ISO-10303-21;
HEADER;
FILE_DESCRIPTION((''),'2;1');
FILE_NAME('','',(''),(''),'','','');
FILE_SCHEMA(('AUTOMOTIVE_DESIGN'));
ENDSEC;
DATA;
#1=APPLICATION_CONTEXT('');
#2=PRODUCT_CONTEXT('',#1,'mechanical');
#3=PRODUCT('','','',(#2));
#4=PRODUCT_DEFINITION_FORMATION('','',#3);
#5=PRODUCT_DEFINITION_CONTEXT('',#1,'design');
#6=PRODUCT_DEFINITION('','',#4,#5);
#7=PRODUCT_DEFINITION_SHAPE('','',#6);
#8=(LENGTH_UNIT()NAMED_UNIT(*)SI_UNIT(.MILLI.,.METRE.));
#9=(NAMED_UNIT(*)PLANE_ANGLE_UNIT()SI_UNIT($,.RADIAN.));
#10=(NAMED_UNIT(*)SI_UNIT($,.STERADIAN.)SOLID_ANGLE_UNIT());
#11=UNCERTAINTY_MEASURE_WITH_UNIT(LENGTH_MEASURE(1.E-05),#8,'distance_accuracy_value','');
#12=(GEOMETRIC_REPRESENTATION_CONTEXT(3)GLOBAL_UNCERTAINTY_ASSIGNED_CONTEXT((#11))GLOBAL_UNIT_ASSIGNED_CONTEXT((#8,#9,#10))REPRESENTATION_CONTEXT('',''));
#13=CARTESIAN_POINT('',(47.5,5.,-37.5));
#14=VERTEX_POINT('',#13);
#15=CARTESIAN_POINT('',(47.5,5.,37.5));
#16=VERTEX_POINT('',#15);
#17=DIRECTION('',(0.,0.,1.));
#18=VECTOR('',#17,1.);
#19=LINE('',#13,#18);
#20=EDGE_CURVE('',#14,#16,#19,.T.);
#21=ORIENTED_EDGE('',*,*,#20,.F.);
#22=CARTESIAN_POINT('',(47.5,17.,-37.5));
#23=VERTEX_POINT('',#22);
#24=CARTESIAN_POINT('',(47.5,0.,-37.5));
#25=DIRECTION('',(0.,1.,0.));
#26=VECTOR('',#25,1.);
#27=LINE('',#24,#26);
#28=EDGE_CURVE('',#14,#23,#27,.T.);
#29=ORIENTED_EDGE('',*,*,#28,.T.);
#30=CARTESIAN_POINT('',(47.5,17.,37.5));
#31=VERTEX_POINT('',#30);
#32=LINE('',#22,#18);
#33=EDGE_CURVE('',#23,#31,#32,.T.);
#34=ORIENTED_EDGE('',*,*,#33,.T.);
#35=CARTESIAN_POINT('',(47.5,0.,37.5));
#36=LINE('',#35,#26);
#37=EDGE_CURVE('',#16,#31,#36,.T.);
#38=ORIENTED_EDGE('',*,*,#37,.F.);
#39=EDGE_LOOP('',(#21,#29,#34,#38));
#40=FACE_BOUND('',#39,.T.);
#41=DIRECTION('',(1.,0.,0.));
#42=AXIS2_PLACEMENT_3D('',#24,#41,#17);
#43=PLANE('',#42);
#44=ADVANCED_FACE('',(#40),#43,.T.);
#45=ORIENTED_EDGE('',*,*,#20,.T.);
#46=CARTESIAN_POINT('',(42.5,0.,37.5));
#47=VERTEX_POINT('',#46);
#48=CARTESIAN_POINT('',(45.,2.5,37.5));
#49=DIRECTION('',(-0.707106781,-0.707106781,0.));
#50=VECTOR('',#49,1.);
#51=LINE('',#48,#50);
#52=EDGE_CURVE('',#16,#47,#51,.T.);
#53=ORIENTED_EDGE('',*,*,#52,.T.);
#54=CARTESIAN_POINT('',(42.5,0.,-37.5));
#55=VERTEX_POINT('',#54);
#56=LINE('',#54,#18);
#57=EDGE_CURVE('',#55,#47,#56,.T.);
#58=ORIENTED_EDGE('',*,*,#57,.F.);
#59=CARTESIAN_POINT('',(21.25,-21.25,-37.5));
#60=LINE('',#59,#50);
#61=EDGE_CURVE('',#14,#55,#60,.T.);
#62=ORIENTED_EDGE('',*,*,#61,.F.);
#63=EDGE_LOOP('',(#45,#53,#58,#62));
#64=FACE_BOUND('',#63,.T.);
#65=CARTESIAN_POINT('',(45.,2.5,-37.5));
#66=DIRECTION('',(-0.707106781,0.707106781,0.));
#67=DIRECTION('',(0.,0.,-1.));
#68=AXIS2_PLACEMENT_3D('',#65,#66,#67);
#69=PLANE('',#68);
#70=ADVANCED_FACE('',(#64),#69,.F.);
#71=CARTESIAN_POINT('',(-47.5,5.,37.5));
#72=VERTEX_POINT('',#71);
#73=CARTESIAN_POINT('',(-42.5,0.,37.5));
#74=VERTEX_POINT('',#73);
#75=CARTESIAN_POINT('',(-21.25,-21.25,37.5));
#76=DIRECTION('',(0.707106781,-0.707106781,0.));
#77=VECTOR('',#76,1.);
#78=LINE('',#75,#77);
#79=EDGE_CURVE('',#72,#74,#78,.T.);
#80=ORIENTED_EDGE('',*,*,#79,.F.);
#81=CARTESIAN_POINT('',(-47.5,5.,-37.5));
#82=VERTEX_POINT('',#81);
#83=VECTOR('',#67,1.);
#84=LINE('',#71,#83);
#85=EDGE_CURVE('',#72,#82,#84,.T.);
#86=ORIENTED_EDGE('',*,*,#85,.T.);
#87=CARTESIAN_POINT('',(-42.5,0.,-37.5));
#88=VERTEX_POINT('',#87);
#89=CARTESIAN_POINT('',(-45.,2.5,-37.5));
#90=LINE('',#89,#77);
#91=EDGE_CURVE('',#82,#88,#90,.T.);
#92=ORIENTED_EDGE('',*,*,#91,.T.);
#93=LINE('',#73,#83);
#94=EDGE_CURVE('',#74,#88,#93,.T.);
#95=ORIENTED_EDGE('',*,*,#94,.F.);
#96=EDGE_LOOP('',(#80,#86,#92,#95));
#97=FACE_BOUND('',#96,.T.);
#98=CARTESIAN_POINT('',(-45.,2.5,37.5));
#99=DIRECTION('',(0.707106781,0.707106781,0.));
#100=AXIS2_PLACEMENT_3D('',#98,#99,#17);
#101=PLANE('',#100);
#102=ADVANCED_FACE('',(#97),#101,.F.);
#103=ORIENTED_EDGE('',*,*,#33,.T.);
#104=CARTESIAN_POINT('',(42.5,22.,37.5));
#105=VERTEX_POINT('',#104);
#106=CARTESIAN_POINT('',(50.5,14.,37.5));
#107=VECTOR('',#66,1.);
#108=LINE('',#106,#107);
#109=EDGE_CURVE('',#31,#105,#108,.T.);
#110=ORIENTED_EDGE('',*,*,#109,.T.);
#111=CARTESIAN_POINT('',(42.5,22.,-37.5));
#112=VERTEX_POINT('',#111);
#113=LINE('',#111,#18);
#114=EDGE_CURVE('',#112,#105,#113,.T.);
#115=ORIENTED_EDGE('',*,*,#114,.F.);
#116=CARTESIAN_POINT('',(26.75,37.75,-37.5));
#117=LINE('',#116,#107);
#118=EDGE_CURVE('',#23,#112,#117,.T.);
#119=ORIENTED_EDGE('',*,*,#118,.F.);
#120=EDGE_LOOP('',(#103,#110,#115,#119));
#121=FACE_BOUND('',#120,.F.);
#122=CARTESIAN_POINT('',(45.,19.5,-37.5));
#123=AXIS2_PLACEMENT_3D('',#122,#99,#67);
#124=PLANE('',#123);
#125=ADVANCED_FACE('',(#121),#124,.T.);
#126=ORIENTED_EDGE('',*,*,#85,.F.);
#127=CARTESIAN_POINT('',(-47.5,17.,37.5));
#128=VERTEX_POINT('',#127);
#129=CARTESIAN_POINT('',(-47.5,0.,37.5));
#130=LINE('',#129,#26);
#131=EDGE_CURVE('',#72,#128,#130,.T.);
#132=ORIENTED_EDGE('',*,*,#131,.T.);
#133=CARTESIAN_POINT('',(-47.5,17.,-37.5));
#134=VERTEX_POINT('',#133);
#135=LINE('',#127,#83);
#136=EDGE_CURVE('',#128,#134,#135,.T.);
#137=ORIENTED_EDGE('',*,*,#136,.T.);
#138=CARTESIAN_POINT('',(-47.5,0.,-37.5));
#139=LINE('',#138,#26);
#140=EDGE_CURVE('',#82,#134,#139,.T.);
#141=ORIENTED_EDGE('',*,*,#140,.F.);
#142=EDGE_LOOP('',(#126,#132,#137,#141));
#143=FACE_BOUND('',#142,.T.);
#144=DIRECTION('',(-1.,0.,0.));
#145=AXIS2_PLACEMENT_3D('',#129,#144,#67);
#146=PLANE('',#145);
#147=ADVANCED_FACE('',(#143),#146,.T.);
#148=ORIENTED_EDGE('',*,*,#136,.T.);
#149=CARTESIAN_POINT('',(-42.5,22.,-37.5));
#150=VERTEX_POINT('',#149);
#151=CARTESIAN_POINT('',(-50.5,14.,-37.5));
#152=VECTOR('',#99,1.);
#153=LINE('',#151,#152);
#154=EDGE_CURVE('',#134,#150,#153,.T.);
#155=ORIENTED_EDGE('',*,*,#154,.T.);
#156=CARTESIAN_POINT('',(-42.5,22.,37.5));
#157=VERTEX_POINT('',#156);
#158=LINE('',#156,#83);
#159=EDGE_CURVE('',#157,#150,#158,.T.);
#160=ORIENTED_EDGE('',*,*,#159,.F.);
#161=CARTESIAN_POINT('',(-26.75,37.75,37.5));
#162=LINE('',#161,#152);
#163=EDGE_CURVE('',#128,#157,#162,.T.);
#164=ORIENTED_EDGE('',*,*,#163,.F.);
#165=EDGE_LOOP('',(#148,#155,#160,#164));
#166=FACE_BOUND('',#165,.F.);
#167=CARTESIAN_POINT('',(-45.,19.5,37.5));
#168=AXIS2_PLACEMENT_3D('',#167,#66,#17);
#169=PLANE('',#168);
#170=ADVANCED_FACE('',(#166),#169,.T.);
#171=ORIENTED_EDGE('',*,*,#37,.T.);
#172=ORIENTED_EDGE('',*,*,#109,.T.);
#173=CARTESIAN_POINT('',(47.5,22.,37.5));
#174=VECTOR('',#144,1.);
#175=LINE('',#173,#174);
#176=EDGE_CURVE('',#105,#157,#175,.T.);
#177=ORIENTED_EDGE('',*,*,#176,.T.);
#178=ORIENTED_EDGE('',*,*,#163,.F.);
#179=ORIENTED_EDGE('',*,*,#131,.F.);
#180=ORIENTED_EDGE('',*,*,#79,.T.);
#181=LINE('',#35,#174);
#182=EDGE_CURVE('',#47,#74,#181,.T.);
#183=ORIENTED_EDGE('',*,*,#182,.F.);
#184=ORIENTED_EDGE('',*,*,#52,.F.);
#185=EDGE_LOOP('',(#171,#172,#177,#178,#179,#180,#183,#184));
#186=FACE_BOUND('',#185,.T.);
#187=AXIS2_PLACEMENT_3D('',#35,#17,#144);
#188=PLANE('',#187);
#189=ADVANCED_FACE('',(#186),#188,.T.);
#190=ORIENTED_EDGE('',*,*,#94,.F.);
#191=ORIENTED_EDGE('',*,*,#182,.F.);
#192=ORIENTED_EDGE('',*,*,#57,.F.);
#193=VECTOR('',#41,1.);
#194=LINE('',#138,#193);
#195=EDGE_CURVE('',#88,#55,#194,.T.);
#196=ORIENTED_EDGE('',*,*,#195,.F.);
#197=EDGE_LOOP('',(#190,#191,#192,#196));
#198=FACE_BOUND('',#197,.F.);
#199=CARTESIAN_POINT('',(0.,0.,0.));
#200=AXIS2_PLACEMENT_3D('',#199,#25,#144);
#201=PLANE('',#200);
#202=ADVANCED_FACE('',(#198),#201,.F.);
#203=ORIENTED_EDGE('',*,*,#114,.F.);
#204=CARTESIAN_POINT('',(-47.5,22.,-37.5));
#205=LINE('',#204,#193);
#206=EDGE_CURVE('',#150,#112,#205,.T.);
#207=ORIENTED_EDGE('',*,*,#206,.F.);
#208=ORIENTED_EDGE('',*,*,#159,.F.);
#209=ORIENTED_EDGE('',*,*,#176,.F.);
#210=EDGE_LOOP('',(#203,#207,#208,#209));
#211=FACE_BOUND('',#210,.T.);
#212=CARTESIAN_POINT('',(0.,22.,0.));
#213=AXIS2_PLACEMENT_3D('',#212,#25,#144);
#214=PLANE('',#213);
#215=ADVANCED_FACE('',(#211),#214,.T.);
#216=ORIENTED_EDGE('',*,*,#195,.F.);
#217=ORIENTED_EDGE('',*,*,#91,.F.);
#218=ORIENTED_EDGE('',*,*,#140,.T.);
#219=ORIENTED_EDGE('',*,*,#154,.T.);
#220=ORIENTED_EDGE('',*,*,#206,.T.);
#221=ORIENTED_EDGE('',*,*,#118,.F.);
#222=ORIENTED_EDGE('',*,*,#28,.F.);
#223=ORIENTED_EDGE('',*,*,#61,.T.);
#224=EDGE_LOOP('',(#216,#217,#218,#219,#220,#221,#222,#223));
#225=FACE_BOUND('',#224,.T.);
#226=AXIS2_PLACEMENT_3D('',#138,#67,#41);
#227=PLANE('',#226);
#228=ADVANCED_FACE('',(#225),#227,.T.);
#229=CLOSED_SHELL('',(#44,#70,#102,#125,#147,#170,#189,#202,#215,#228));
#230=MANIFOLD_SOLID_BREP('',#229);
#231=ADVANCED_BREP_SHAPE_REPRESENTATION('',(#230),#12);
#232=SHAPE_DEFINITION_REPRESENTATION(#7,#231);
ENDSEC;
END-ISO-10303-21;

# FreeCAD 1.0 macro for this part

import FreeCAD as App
import Part
import Sketcher
from FreeCAD import Vector


def edges_at(feature, points):
    """Names of the edges that pass closest to the given points."""
    edges = feature.Shape.Edges
    near = lambda p: min(range(len(edges)), key=lambda i: edges[i].distToShape(Part.Vertex(*p))[0])
    return sorted({f"Edge{near(p) + 1}" for p in points})

doc = App.newDocument("Part")
params = doc.addObject("Spreadsheet::Sheet", "Params")
for row, (alias, value) in enumerate([
    ("sketch1_width", "95 mm"),
    ("sketch1_height", "75 mm"),
    ("pad1_length", "22 mm"),
    ("chamfer_size", "5 mm"),
], start=1):
    params.set(f"A{row}", alias)
    params.set(f"B{row}", "=" + value)
    params.setAlias(f"B{row}", alias)

body = doc.addObject("PartDesign::Body", "Body")

# Sketch on XZ plane
sketch1 = body.newObject("Sketcher::SketchObject", "Sketch")
sketch1.AttachmentSupport = (doc.getObject("XZ_Plane"), [""])
sketch1.MapMode = "FlatFace"
sketch1.addGeometry([
    Part.LineSegment(Vector(-48, 38, 0), Vector(48, 38, 0)),
    Part.LineSegment(Vector(48, 38, 0), Vector(48, -38, 0)),
    Part.LineSegment(Vector(48, -38, 0), Vector(-48, -38, 0)),
    Part.LineSegment(Vector(-48, -38, 0), Vector(-48, 38, 0)),
], False)
sketch1.addConstraint([
    Sketcher.Constraint("Coincident", 0, 2, 1, 1),
    Sketcher.Constraint("Coincident", 1, 2, 2, 1),
    Sketcher.Constraint("Coincident", 2, 2, 3, 1),
    Sketcher.Constraint("Coincident", 3, 2, 0, 1),
    Sketcher.Constraint("Horizontal", 0),
    Sketcher.Constraint("Vertical", 1),
    Sketcher.Constraint("Horizontal", 2),
    Sketcher.Constraint("Vertical", 3),
    Sketcher.Constraint("Symmetric", 0, 2, 2, 2, -1, 1),
    Sketcher.Constraint("DistanceX", 0, 1, 0, 2, 95.0),
    Sketcher.Constraint("DistanceY", 1, 2, 1, 1, 75.0),
])
sketch1.setExpression("Constraints[9]", "Params.sketch1_width")
sketch1.setExpression("Constraints[10]", "Params.sketch1_height")
pad1 = body.newObject("PartDesign::Pad", "Pad")
pad1.Profile = sketch1
pad1.setExpression("Length", "Params.pad1_length")
pad1.Reversed = True
doc.recompute()

chamfer = body.newObject("PartDesign::Chamfer", "Chamfer")
chamfer.Base = (pad1, edges_at(pad1, [
    (-47.5, 22, 0),
    (47.5, 22, 0),
    (47.5, 0, 0),
    (-47.5, 0, 0),
]))
chamfer.setExpression("Size", "Params.chamfer_size")

doc.recompute()
